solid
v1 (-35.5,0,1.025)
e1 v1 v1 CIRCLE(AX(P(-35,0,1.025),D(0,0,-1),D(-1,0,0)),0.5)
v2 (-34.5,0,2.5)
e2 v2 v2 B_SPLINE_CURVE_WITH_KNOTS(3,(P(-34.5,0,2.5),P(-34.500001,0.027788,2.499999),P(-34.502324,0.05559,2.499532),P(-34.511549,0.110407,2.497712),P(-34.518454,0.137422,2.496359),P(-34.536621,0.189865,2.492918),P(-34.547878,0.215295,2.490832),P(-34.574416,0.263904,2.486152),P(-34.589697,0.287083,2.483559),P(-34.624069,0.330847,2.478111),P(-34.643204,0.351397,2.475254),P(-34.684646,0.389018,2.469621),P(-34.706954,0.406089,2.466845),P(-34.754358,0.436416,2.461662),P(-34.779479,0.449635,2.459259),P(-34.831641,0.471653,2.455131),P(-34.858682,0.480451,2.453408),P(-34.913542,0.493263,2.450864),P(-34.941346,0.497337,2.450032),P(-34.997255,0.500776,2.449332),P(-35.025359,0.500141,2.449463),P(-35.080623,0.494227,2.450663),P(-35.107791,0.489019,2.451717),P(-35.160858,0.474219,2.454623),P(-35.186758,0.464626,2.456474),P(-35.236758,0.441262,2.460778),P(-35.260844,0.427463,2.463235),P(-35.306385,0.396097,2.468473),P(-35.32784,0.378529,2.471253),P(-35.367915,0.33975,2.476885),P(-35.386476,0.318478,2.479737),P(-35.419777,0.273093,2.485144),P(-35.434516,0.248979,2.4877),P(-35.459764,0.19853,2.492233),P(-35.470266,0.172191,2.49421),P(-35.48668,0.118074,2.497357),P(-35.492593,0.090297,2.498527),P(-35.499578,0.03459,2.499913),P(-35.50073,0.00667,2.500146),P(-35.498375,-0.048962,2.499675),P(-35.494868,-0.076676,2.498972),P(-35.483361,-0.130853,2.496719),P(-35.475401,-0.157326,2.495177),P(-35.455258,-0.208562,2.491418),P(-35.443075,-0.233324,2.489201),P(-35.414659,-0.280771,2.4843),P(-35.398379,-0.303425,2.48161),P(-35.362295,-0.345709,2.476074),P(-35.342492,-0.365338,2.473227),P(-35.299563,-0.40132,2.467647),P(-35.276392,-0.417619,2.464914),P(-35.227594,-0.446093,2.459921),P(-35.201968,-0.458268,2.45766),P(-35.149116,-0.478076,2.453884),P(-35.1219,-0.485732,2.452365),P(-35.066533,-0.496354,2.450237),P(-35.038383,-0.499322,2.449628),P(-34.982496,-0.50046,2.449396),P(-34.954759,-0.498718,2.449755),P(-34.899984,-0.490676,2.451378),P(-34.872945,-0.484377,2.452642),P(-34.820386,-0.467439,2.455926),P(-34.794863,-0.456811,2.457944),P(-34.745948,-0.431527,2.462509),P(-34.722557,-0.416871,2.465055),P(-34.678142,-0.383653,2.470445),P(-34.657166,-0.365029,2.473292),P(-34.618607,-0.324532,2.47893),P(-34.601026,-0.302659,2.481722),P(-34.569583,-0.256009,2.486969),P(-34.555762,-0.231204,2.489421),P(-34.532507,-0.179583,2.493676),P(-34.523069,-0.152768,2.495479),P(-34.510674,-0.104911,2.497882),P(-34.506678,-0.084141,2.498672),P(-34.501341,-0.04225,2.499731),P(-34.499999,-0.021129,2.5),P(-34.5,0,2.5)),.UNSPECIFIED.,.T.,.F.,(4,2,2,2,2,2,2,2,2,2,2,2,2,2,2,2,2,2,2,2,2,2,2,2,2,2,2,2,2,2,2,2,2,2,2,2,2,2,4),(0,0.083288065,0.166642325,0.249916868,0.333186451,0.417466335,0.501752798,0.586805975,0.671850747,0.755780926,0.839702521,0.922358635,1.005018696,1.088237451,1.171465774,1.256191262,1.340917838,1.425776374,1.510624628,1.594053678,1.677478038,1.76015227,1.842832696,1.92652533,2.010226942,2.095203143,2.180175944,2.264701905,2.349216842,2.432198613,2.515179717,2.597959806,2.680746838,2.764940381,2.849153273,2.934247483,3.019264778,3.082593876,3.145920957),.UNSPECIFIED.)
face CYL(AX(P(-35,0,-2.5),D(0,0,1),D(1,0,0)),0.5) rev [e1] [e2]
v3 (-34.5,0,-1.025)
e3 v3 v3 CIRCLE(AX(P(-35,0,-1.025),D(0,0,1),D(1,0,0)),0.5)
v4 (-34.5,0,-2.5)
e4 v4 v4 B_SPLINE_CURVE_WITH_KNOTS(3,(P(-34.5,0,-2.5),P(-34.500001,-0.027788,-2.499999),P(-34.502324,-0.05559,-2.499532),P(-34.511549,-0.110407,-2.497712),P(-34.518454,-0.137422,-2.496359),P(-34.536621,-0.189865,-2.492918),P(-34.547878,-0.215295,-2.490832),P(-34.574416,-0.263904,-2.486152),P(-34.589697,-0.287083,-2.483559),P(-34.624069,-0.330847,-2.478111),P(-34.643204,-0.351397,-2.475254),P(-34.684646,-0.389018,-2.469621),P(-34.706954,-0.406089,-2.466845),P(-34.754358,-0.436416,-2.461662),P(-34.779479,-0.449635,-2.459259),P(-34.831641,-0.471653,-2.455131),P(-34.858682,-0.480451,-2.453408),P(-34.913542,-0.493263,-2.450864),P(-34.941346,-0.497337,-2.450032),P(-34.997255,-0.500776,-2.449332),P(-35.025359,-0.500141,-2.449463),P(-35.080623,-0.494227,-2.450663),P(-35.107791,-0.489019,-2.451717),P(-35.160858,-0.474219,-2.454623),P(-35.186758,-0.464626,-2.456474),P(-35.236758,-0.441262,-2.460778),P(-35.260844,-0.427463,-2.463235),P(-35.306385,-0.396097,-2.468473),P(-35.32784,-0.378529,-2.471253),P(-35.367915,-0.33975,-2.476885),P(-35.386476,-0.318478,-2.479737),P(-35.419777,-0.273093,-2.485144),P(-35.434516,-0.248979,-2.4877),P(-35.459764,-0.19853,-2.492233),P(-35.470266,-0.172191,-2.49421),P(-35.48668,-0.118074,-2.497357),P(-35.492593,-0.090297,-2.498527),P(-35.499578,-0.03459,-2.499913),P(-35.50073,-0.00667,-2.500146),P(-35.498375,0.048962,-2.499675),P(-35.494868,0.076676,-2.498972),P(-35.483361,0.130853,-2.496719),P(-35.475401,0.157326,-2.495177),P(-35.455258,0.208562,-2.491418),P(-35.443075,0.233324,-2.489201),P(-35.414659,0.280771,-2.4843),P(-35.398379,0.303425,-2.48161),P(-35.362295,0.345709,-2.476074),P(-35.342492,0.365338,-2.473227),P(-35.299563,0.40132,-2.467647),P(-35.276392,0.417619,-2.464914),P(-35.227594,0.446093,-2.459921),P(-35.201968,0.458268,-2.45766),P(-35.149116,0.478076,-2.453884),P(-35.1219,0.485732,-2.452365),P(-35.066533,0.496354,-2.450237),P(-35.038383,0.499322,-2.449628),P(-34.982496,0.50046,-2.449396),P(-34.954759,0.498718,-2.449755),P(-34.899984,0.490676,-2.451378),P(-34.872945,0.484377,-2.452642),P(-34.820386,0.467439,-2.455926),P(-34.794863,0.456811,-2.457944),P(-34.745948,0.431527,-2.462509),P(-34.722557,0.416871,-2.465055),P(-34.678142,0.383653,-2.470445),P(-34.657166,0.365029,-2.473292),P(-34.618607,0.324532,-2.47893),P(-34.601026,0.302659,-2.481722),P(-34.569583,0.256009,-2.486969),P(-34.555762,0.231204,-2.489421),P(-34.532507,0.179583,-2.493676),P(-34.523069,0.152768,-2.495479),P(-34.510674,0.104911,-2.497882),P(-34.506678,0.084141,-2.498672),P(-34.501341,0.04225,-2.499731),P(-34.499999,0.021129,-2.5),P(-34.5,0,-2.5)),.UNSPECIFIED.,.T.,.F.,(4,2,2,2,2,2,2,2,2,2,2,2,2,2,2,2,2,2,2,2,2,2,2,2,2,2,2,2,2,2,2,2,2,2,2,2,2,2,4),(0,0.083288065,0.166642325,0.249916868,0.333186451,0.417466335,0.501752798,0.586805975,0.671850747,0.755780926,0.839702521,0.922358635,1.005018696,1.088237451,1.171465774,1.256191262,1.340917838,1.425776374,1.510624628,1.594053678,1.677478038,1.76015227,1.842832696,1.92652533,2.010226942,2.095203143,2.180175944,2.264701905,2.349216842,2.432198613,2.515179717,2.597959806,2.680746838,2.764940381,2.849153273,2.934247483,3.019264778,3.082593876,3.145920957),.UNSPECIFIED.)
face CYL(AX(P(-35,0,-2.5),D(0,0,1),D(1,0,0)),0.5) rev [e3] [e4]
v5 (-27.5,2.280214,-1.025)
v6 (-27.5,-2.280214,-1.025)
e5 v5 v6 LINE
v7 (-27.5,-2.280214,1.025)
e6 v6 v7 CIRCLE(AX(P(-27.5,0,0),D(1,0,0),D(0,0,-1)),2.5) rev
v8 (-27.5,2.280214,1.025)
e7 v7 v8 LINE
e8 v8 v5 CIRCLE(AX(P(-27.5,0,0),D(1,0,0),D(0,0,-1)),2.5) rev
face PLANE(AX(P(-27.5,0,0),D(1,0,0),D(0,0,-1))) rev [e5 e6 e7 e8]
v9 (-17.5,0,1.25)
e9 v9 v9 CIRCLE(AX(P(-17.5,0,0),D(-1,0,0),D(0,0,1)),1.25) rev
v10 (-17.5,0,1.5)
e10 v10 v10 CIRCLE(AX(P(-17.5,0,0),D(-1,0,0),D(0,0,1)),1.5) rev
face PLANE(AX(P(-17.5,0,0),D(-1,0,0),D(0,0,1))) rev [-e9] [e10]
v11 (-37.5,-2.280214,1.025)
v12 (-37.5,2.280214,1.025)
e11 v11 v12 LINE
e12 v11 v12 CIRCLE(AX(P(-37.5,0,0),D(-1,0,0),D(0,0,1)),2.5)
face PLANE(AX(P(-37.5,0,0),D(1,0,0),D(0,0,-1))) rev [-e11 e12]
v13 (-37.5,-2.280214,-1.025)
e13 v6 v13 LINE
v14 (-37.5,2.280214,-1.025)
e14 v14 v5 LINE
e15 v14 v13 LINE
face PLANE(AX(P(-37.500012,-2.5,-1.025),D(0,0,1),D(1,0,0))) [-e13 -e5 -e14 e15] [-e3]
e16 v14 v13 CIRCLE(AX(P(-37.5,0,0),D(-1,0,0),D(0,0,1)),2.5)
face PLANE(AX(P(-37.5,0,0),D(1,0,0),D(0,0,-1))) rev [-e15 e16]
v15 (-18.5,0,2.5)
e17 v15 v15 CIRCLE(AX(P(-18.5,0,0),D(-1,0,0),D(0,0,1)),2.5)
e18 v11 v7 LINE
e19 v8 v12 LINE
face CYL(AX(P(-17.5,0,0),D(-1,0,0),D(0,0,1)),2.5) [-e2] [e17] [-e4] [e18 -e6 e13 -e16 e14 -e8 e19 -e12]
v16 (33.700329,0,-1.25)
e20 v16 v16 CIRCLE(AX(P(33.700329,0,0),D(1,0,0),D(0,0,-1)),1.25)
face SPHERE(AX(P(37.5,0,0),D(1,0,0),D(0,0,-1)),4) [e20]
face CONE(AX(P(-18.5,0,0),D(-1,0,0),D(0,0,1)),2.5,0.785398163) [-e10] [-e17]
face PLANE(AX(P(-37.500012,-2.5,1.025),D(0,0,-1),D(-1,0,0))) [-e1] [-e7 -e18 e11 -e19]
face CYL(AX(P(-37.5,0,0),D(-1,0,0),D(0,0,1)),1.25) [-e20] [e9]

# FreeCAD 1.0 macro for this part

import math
import FreeCAD as App
import Part
import Sketcher


def edges_at(feature, points):
    """Names of the edges that pass closest to the given points."""
    edges = feature.Shape.Edges
    near = lambda p: min(range(len(edges)), key=lambda i: edges[i].distToShape(Part.Vertex(*p))[0])
    return sorted({f"Edge{near(p) + 1}" for p in points})


def add_polygon(sketch, points):
    """Adds a closed chain of lines whose ends are joined by coincident constraints."""
    first, n = sketch.GeometryCount, len(points)
    for a, b in zip(points, points[1:] + points[:1]):
        sketch.addGeometry(Part.LineSegment(App.Vector(*a, 0), App.Vector(*b, 0)), False)
    for i in range(n):
        sketch.addConstraint(Sketcher.Constraint("Coincident", first + i, 2, first + (i + 1) % n, 1))

doc = App.newDocument("Part")
params = doc.addObject("Spreadsheet::Sheet", "Params")
for row, (alias, value) in enumerate([
    ("sketch1_width", "75 mm"),
    ("sketch1_height", "1.25 mm"),
    ("revolution_angle", "360 deg"),
    ("sketch2_diameter", "5 mm"),
    ("pad1_length", "20 mm"),
    ("sketch3_width", "5 mm"),
    ("sketch3_height", "2.05 mm"),
    ("pocket1_length", "1 mm"),
    ("pocket1_length2", "10 mm"),
    ("chamfer_size", "1 mm"),
    ("sketch4_diameter", "1 mm"),
    ("sketch5_radius", "4 mm"),
    ("revolution2_angle", "360 deg"),
], start=1):
    params.set(f"A{row}", alias)
    params.set(f"B{row}", "=" + value)
    params.setAlias(f"B{row}", alias)

body = doc.addObject("PartDesign::Body", "Body")

# Sketch on XZ plane
sketch1 = body.newObject("Sketcher::SketchObject", "Sketch")
sketch1.AttachmentSupport = (doc.getObject("XZ_Plane"), [""])
sketch1.MapMode = "FlatFace"
add_polygon(sketch1, [(-37.5, 0), (-37.5, 1.25), (37.5, 1.25), (37.5, 0)])  # lines 0-3
sketch1.addConstraint([
    Sketcher.Constraint("Vertical", 0),
    Sketcher.Constraint("Horizontal", 1),
    Sketcher.Constraint("Vertical", 2),
    Sketcher.Constraint("Horizontal", 3),
    Sketcher.Constraint("Symmetric", 2, 2, 3, 2, -1, 1),
    Sketcher.Constraint("DistanceX", 1, 1, 1, 2, 75.0),
    Sketcher.Constraint("DistanceY", 0, 1, 0, 2, 1.25),
])
sketch1.setExpression("Constraints[9]", "Params.sketch1_width")
sketch1.setExpression("Constraints[10]", "Params.sketch1_height")
revolution = body.newObject("PartDesign::Revolution", "Revolution")
revolution.Profile = sketch1
revolution.ReferenceAxis = (sketch1, ["H_Axis"])
revolution.setExpression("Angle", "Params.revolution_angle")

# Sketch on YZ plane
sketch2 = body.newObject("Sketcher::SketchObject", "Sketch001")
sketch2.AttachmentSupport = (doc.getObject("YZ_Plane"), [""])
sketch2.MapMode = "FlatFace"
sketch2.AttachmentOffset = App.Placement(App.Vector(0, 0, -37.5), App.Rotation())
sketch2.addGeometry(Part.Circle(App.Vector(0, 0, 0), App.Vector(0, 0, 1), 2.5), False)
sketch2.addConstraint([
    Sketcher.Constraint("Coincident", 0, 3, -1, 1),
    Sketcher.Constraint("Diameter", 0, 5.0),
])
sketch2.setExpression("Constraints[1]", "Params.sketch2_diameter")
pad1 = body.newObject("PartDesign::Pad", "Pad")
pad1.Profile = sketch2
pad1.setExpression("Length", "Params.pad1_length")

# Sketch on YZ plane
sketch3 = body.newObject("Sketcher::SketchObject", "Sketch002")
sketch3.AttachmentSupport = (doc.getObject("YZ_Plane"), [""])
sketch3.MapMode = "FlatFace"
sketch3.AttachmentOffset = App.Placement(App.Vector(0, 0, -37.5), App.Rotation())
add_polygon(sketch3, [(2.5, -1.025), (-2.5, -1.025), (-2.5, 1.025), (2.5, 1.025)])  # lines 0-3
sketch3.addConstraint([
    Sketcher.Constraint("Horizontal", 0),
    Sketcher.Constraint("Vertical", 1),
    Sketcher.Constraint("Horizontal", 2),
    Sketcher.Constraint("Vertical", 3),
    Sketcher.Constraint("Symmetric", 0, 2, 2, 2, -1, 1),
    Sketcher.Constraint("DistanceX", 0, 2, 0, 1, 5.0),
    Sketcher.Constraint("DistanceY", 1, 1, 1, 2, 2.05),
])
sketch3.setExpression("Constraints[9]", "Params.sketch3_width")
sketch3.setExpression("Constraints[10]", "Params.sketch3_height")
pocket1 = body.newObject("PartDesign::Pocket", "Pocket")
pocket1.Profile = sketch3
pocket1.Type = "TwoLengths"
pocket1.setExpression("Length", "Params.pocket1_length")
pocket1.setExpression("Length2", "Params.pocket1_length2")
doc.recompute()

chamfer = body.newObject("PartDesign::Chamfer", "Chamfer")
chamfer.Base = (pocket1, edges_at(pocket1, [(-17.5, 0, -2.5)]))
chamfer.setExpression("Size", "Params.chamfer_size")

# Sketch on XY plane
sketch4 = body.newObject("Sketcher::SketchObject", "Sketch003")
sketch4.AttachmentSupport = (doc.getObject("XY_Plane"), [""])
sketch4.MapMode = "FlatFace"
sketch4.AttachmentOffset = App.Placement(App.Vector(0, 0, -1.025), App.Rotation())
sketch4.addGeometry(Part.Circle(App.Vector(-35, 0, 0), App.Vector(0, 0, 1), 0.5), False)
sketch4.addConstraint([
    Sketcher.Constraint("PointOnObject", 0, 3, -1),
    Sketcher.Constraint("Diameter", 0, 1.0),
    Sketcher.Constraint("DistanceX", 0, 3, -1, 1, 35.0),
])
sketch4.setExpression("Constraints[1]", "Params.sketch4_diameter")
pocket2 = body.newObject("PartDesign::Pocket", "Pocket001")
pocket2.Profile = sketch4
pocket2.Type = "ThroughAll"
pocket2.Midplane = True

# Sketch on YZ plane
sketch5 = body.newObject("Sketcher::SketchObject", "Sketch004")
sketch5.AttachmentSupport = (doc.getObject("YZ_Plane"), [""])
sketch5.MapMode = "FlatFace"
sketch5.AttachmentOffset = App.Placement(App.Vector(0, 0, 37.5), App.Rotation())
sketch5.addGeometry([
    Part.ArcOfCircle(Part.Circle(App.Vector(0, 0, 0), App.Vector(0, 0, 1), 4), math.radians(-90), math.radians(90)),
    Part.LineSegment(App.Vector(0, 4, 0), App.Vector(0, -4, 0)),
], False)
sketch5.addConstraint([
    Sketcher.Constraint("Coincident", 0, 1, 1, 2),
    Sketcher.Constraint("Coincident", 1, 1, 0, 2),
    Sketcher.Constraint("Vertical", 1),
    Sketcher.Constraint("Coincident", 0, 3, -1, 1),
    Sketcher.Constraint("PointOnObject", 0, 1, -2),
    Sketcher.Constraint("Radius", 0, 4.0),
])
sketch5.setExpression("Constraints[5]", "Params.sketch5_radius")
revolution2 = body.newObject("PartDesign::Revolution", "Revolution001")
revolution2.Profile = sketch5
revolution2.ReferenceAxis = (sketch5, ["V_Axis"])
revolution2.setExpression("Angle", "Params.revolution2_angle")

doc.recompute()
